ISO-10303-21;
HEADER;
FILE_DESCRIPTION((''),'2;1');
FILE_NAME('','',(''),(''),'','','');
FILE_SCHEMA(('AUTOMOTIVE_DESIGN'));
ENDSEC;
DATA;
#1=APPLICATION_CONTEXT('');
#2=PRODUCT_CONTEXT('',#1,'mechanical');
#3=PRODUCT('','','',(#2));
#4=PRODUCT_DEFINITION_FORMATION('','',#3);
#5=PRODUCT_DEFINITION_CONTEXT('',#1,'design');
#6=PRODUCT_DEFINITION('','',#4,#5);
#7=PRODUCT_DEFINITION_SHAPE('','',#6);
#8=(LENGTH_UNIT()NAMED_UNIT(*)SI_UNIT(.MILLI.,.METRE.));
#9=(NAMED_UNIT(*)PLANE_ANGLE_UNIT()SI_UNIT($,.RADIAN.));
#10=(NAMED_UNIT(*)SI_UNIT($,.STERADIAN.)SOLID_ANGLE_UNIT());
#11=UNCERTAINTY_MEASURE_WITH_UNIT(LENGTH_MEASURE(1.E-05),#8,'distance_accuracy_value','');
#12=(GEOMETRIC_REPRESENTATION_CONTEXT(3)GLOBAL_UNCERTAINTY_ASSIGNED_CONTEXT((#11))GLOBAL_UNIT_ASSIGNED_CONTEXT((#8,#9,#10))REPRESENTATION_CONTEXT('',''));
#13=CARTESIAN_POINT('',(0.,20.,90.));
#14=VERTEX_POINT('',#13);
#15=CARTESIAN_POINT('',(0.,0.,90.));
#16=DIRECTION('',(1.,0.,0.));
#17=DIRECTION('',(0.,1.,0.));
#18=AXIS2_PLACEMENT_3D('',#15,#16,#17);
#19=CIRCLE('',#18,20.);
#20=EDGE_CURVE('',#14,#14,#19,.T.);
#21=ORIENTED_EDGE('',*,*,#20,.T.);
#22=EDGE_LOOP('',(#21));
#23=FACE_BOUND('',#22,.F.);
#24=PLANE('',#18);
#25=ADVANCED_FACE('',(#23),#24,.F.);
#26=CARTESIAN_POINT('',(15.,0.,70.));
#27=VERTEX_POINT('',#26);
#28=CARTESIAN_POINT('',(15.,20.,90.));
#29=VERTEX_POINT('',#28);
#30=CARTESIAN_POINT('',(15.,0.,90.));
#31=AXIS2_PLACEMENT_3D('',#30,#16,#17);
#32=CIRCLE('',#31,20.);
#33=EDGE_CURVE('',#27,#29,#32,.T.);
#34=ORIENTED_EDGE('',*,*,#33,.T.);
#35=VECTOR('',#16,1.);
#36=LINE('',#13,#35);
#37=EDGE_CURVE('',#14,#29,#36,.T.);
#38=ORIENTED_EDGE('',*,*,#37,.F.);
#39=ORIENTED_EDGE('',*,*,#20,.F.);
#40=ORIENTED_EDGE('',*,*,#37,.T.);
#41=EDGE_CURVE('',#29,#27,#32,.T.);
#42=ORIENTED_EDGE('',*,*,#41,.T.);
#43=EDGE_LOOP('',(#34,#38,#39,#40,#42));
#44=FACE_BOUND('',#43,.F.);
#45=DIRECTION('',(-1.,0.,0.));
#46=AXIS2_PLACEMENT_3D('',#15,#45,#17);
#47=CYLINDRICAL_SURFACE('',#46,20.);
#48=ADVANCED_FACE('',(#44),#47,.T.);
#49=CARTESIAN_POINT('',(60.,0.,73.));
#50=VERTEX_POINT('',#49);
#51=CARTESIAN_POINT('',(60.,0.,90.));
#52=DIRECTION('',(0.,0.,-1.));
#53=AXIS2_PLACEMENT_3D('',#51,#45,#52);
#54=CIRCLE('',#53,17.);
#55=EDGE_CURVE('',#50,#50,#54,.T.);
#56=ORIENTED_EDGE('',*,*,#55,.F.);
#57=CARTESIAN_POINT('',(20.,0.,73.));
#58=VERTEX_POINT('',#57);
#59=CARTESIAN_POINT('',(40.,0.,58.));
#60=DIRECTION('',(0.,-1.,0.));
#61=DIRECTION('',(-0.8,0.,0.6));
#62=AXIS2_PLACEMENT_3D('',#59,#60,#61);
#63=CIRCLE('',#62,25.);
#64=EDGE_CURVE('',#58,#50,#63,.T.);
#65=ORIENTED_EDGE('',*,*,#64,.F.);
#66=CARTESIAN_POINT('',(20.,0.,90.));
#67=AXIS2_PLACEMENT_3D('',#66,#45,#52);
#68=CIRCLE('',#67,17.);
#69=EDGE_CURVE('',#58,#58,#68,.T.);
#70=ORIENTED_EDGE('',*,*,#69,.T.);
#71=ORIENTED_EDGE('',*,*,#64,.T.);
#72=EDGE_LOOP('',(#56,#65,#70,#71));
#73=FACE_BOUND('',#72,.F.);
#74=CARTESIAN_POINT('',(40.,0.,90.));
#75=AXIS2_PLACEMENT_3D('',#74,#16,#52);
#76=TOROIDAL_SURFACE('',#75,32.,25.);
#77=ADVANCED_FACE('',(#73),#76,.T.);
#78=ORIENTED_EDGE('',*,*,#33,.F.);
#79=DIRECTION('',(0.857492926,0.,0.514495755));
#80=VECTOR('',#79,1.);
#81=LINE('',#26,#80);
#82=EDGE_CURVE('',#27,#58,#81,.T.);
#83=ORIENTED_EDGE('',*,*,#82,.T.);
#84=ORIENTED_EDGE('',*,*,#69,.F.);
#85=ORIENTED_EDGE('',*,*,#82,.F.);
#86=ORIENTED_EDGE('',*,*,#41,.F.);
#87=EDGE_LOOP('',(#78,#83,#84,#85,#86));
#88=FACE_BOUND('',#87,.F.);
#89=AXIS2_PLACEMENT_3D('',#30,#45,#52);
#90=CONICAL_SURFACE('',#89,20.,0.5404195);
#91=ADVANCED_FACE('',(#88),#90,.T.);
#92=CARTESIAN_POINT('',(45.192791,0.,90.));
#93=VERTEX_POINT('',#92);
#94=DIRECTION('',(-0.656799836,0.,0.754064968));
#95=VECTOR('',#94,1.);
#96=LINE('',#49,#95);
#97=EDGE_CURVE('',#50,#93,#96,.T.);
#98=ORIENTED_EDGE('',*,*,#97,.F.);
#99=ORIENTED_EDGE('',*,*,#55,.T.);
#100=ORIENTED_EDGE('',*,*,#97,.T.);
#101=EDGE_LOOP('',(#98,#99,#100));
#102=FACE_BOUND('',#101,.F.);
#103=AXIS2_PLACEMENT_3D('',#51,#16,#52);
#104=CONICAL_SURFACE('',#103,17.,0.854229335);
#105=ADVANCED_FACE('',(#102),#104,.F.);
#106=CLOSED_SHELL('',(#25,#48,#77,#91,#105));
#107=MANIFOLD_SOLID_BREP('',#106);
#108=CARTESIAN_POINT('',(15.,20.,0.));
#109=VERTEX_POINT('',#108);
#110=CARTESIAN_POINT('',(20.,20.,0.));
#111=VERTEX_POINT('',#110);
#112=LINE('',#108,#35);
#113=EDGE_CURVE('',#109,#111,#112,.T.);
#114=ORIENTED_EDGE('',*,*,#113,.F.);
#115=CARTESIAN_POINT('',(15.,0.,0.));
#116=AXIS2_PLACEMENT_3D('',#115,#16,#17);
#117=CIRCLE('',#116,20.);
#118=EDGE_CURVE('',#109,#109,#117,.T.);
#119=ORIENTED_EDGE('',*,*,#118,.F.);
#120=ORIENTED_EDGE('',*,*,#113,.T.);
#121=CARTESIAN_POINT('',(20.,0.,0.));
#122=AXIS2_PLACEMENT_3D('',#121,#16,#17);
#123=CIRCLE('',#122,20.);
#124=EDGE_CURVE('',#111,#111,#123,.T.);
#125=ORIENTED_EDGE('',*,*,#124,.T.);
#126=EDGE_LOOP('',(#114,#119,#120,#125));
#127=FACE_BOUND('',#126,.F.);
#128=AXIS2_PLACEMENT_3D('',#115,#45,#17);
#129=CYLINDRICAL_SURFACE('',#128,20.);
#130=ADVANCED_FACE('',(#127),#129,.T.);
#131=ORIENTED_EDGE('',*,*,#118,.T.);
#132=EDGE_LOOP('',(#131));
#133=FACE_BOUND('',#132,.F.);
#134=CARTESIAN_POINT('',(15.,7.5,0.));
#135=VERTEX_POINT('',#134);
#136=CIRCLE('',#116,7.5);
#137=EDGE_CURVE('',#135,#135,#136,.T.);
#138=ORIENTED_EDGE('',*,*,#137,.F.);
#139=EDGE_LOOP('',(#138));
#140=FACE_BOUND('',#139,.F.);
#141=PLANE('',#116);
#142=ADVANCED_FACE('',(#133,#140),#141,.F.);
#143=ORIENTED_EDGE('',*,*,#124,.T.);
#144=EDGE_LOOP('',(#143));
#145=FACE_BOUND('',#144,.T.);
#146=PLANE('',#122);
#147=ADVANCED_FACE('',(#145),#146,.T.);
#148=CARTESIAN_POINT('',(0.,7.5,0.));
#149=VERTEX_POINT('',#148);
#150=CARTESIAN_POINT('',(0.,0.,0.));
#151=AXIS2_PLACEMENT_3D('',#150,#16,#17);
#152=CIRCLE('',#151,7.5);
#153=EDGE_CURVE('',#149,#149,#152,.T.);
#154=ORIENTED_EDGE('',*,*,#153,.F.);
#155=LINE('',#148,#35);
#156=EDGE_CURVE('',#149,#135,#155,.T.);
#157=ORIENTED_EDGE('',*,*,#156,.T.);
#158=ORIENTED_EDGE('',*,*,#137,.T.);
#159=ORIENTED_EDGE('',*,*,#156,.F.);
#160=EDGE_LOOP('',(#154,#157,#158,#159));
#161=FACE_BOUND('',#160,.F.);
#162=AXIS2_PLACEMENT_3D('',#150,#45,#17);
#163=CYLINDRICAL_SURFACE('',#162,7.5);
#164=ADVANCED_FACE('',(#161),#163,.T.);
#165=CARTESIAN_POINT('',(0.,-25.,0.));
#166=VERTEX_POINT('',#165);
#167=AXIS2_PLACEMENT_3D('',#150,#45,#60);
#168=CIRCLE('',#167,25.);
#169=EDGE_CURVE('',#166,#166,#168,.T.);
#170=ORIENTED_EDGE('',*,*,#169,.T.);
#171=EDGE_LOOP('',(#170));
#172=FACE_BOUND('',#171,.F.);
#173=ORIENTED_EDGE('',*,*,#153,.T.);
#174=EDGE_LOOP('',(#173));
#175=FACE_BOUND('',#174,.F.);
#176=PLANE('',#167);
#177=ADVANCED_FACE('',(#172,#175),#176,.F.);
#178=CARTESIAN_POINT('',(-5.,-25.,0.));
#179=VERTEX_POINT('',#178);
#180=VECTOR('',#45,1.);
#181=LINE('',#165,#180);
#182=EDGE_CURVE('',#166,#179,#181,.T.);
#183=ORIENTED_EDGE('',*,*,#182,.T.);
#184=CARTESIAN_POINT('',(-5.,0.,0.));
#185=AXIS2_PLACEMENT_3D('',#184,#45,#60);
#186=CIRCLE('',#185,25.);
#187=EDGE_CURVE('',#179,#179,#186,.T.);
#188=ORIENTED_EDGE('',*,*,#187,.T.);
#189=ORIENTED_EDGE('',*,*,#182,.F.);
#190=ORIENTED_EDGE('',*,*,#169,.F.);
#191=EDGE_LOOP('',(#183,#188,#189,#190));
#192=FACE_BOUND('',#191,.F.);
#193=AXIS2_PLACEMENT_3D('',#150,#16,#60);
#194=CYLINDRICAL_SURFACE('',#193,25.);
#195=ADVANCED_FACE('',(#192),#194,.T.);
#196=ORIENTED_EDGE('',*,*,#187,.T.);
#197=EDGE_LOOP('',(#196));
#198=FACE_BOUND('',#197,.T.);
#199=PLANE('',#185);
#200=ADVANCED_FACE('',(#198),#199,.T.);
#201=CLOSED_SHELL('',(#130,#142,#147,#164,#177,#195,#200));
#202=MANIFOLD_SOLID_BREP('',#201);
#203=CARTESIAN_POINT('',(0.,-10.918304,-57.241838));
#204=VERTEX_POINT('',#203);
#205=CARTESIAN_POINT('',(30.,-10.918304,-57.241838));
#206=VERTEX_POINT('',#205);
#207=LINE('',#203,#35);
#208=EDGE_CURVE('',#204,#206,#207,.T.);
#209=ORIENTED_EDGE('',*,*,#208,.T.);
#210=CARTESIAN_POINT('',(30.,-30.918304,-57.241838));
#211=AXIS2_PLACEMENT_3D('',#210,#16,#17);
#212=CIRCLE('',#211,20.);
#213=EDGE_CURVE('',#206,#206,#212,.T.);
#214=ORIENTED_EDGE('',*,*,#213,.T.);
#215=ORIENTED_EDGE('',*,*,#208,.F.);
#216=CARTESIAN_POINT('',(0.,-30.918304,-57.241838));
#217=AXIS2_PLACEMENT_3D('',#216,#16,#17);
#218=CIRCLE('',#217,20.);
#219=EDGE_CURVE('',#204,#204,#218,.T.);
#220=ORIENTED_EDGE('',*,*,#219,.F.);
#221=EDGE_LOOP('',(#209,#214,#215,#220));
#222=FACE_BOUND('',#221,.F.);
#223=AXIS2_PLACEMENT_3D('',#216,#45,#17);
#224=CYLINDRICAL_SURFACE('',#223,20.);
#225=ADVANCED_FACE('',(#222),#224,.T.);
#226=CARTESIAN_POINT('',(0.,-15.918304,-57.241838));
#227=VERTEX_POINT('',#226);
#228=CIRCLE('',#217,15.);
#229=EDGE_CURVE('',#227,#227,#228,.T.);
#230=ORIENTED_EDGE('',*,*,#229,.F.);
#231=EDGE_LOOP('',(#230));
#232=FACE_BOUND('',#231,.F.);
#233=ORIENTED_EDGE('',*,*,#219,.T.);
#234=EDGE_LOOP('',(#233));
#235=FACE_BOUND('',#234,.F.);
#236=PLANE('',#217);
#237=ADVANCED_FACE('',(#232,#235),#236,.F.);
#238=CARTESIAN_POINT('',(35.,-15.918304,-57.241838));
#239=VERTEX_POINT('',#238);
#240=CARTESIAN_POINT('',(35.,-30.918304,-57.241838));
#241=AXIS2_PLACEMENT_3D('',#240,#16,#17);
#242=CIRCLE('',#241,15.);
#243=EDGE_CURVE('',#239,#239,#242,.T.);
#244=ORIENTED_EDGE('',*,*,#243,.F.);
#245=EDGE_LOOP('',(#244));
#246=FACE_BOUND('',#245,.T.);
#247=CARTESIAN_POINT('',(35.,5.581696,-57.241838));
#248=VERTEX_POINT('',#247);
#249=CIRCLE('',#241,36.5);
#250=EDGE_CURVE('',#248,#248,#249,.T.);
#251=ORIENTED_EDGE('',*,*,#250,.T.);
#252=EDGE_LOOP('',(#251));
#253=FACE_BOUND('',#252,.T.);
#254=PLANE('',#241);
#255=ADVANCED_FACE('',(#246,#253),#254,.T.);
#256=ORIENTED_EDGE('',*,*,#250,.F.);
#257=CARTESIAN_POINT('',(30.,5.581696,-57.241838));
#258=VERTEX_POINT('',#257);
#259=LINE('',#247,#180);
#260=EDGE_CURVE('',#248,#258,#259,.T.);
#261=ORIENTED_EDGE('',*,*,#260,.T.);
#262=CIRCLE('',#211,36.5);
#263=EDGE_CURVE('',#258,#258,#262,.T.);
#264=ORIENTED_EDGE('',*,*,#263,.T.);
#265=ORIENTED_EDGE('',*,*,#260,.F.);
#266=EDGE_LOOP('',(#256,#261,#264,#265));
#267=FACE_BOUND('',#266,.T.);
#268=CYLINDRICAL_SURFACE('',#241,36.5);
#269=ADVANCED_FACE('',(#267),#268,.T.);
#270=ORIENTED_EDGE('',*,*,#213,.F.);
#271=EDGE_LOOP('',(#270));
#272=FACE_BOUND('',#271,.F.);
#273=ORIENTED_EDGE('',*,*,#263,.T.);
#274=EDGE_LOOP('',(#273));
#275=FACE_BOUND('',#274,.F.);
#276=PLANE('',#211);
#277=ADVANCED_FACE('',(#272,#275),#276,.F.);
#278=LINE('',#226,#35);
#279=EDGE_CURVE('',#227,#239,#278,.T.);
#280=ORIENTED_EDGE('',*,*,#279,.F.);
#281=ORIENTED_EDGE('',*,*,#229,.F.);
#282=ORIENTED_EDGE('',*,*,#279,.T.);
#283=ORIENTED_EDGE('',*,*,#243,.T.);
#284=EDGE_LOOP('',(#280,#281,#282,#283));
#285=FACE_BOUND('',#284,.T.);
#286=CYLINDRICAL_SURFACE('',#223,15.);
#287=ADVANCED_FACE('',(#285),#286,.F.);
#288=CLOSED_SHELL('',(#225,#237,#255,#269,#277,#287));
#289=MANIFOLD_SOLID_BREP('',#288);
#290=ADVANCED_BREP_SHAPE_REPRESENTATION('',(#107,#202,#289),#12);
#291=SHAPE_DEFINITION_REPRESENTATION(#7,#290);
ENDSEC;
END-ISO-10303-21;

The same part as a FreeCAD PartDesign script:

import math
import FreeCAD as App
import Part
import Sketcher

V = App.Vector
Q = App.Units.Quantity

doc = App.newDocument("Part")
body = doc.addObject("PartDesign::Body", "Body")

sketch1 = body.newObject("Sketcher::SketchObject", "Sketch")
sketch1.AttachmentSupport = (doc.getObject("YZ_Plane"), [""])
sketch1.MapMode = "FlatFace"
sketch1.addGeometry(Part.Circle(V(0, 0, 0), V(0, 0, 1), 7.5), False)
sketch1.addConstraint(Sketcher.Constraint("Coincident", 0, 3, -1, 1))
sketch1.addConstraint(Sketcher.Constraint("Diameter", 0, Q("15 mm")))
pad1 = body.newObject("PartDesign::Pad", "Pad")
pad1.Profile = sketch1
pad1.Length = 15

sketch2 = body.newObject("Sketcher::SketchObject", "Sketch001")
sketch2.AttachmentSupport = (doc.getObject("YZ_Plane"), [""])
sketch2.MapMode = "FlatFace"
sketch2.AttachmentOffset = App.Placement(V(0, 0, 15), App.Rotation())
sketch2.addGeometry(Part.Circle(V(0, 0, 0), V(0, 0, 1), 20), False)
sketch2.addConstraint(Sketcher.Constraint("Coincident", 0, 3, -1, 1))
sketch2.addConstraint(Sketcher.Constraint("Diameter", 0, Q("40 mm")))
pad2 = body.newObject("PartDesign::Pad", "Pad001")
pad2.Profile = sketch2
pad2.Length = 5

sketch3 = body.newObject("Sketcher::SketchObject", "Sketch002")
sketch3.AttachmentSupport = (doc.getObject("YZ_Plane"), [""])
sketch3.MapMode = "FlatFace"
sketch3.addGeometry(Part.Circle(V(0, 0, 0), V(0, 0, 1), 25), False)
sketch3.addConstraint(Sketcher.Constraint("Coincident", 0, 3, -1, 1))
sketch3.addConstraint(Sketcher.Constraint("Diameter", 0, Q("50 mm")))
pad3 = body.newObject("PartDesign::Pad", "Pad002")
pad3.Profile = sketch3
pad3.Length = 5
pad3.Reversed = True
body2 = doc.addObject("PartDesign::Body", "Body001")

sketch4 = body2.newObject("Sketcher::SketchObject", "Sketch003")
sketch4.AttachmentSupport = (doc.getObject("YZ_Plane001"), [""])
sketch4.MapMode = "FlatFace"
sketch4.addGeometry(Part.Circle(V(-30.918304, -57.241838, 0), V(0, 0, 1), 20), False)
sketch4.addGeometry(Part.Circle(V(-30.918304, -57.241838, 0), V(0, 0, 1), 15), False)
sketch4.addConstraint(Sketcher.Constraint("Coincident", 1, 3, 0, 3))
sketch4.addConstraint(Sketcher.Constraint("Diameter", 0, Q("40 mm")))
sketch4.addConstraint(Sketcher.Constraint("Diameter", 1, Q("30 mm")))
sketch4.addConstraint(Sketcher.Constraint("DistanceY", 0, 3, -1, 1, Q("57.241838 mm")))
sketch4.addConstraint(Sketcher.Constraint("DistanceX", 0, 3, -1, 1, Q("30.918304 mm")))
pad4 = body2.newObject("PartDesign::Pad", "Pad003")
pad4.Profile = sketch4
pad4.Length = 35

sketch5 = body2.newObject("Sketcher::SketchObject", "Sketch004")
sketch5.AttachmentSupport = (doc.getObject("YZ_Plane001"), [""])
sketch5.MapMode = "FlatFace"
sketch5.AttachmentOffset = App.Placement(V(0, 0, 35), App.Rotation())
sketch5.addGeometry(Part.Circle(V(-30.918304, -57.241838, 0), V(0, 0, 1), 36.5), False)
sketch5.addGeometry(Part.Circle(V(-30.918304, -57.241838, 0), V(0, 0, 1), 20), False)
sketch5.addConstraint(Sketcher.Constraint("Coincident", 1, 3, 0, 3))
sketch5.addConstraint(Sketcher.Constraint("Diameter", 0, Q("73 mm")))
sketch5.addConstraint(Sketcher.Constraint("Diameter", 1, Q("40 mm")))
sketch5.addConstraint(Sketcher.Constraint("DistanceY", 0, 3, -1, 1, Q("57.241838 mm")))
sketch5.addConstraint(Sketcher.Constraint("DistanceX", 0, 3, -1, 1, Q("30.918304 mm")))
pad5 = body2.newObject("PartDesign::Pad", "Pad004")
pad5.Profile = sketch5
pad5.Length = 5
pad5.Reversed = True
body3 = doc.addObject("PartDesign::Body", "Body002")

sketch6 = body3.newObject("Sketcher::SketchObject", "Sketch005")
sketch6.AttachmentSupport = (doc.getObject("YZ_Plane002"), [""])
sketch6.MapMode = "FlatFace"
sketch6.addGeometry(Part.Circle(V(0, 90, 0), V(0, 0, 1), 20), False)
sketch6.addConstraint(Sketcher.Constraint("PointOnObject", 0, 3, -2))
sketch6.addConstraint(Sketcher.Constraint("Diameter", 0, Q("40 mm")))
sketch6.addConstraint(Sketcher.Constraint("DistanceY", -1, 1, 0, 3, Q("90 mm")))
pad6 = body3.newObject("PartDesign::Pad", "Pad005")
pad6.Profile = sketch6
pad6.Length = 15

sketch7 = body3.newObject("Sketcher::SketchObject", "Sketch006")
sketch7.AttachmentSupport = (doc.getObject("XZ_Plane002"), [""])
sketch7.MapMode = "FlatFace"
sketch7.addGeometry(Part.LineSegment(V(15, 90, 0), V(15, 70, 0)), False)
sketch7.addGeometry(Part.LineSegment(V(15, 70, 0), V(20, 73, 0)), False)
sketch7.addGeometry(Part.ArcOfCircle(Part.Circle(V(40, 58, 0), V(0, 0, 1), 25), math.radians(143.130102), math.radians(396.869898)), False)
sketch7.addGeometry(Part.LineSegment(V(60, 73, 0), V(45.192791, 90, 0)), False)
sketch7.addGeometry(Part.LineSegment(V(45.192791, 90, 0), V(15, 90, 0)), False)
sketch7.addGeometry(Part.LineSegment(V(60, 90, 0), V(15, 90, 0)), True)
sketch7.addConstraint(Sketcher.Constraint("Coincident", 0, 2, 1, 1))
sketch7.addConstraint(Sketcher.Constraint("Coincident", 1, 2, 2, 1))
sketch7.addConstraint(Sketcher.Constraint("Coincident", 2, 2, 3, 1))
sketch7.addConstraint(Sketcher.Constraint("Coincident", 3, 2, 4, 1))
sketch7.addConstraint(Sketcher.Constraint("Coincident", 4, 2, 0, 1))
sketch7.addConstraint(Sketcher.Constraint("Vertical", 0))
sketch7.addConstraint(Sketcher.Constraint("Horizontal", 4))
sketch7.addConstraint(Sketcher.Constraint("Horizontal", 5))
sketch7.addConstraint(Sketcher.Constraint("Coincident", 5, 2, 4, 2))
sketch7.addConstraint(Sketcher.Constraint("Horizontal", 1, 2, 2, 2))
sketch7.addConstraint(Sketcher.Constraint("Vertical", 2, 2, 5, 1))
sketch7.addConstraint(Sketcher.Constraint("Radius", 2, Q("25 mm")))
sketch7.addConstraint(Sketcher.Constraint("DistanceX", 5, 2, 5, 1, Q("45 mm")))
sketch7.addConstraint(Sketcher.Constraint("DistanceY", 0, 2, 0, 1, Q("20 mm")))
sketch7.addConstraint(Sketcher.Constraint("DistanceX", -1, 1, 2, 3, Q("40 mm")))
sketch7.addConstraint(Sketcher.Constraint("DistanceY", -1, 1, 2, 3, Q("58 mm")))
sketch7.addConstraint(Sketcher.Constraint("DistanceX", -1, 1, 0, 2, Q("15 mm")))
sketch7.addConstraint(Sketcher.Constraint("DistanceY", -1, 1, 0, 2, Q("70 mm")))
sketch7.addConstraint(Sketcher.Constraint("DistanceX", 4, 2, 4, 1, Q("30.192791 mm")))
revolution = body3.newObject("PartDesign::Revolution", "Revolution")
revolution.Profile = sketch7
revolution.ReferenceAxis = (sketch7, ["Axis0"])
revolution.Angle = 360

doc.recompute()
